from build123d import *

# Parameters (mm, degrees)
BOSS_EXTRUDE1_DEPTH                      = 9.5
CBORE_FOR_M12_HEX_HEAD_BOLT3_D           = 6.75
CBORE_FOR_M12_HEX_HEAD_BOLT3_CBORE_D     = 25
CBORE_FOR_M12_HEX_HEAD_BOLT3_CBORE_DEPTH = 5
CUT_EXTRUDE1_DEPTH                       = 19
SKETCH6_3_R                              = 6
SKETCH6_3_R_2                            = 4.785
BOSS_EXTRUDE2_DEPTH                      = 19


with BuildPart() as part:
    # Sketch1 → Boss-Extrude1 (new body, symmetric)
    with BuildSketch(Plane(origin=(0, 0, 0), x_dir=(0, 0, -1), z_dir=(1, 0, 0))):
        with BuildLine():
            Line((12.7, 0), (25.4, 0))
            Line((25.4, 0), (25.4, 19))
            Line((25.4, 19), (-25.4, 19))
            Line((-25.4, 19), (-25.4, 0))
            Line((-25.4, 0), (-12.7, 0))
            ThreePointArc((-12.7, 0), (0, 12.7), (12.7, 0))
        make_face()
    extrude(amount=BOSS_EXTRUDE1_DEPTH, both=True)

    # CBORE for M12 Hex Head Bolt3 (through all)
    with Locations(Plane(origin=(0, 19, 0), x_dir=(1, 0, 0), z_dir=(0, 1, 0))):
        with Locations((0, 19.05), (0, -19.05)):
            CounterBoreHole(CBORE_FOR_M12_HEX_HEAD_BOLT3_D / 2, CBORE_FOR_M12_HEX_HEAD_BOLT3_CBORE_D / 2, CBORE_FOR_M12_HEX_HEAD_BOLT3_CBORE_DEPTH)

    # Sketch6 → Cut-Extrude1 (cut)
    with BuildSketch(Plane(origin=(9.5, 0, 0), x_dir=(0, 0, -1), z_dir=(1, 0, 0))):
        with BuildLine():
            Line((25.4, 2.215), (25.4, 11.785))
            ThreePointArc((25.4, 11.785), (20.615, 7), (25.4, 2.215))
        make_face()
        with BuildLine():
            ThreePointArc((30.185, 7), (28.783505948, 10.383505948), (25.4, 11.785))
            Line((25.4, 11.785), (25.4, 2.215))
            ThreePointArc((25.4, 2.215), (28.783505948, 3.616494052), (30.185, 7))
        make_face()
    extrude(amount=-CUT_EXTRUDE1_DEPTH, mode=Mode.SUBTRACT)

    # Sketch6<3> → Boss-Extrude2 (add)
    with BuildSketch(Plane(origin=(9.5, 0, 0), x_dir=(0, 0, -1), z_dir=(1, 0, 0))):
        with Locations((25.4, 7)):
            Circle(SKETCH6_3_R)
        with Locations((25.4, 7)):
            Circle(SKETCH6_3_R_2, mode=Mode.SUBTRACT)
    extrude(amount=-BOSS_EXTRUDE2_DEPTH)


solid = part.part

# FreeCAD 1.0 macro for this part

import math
import FreeCAD as App
import Part
import Sketcher
Q = App.Units.Quantity

doc = App.newDocument("Part")
body = doc.addObject("PartDesign::Body", "Body")

sketch1 = body.newObject("Sketcher::SketchObject", "Sketch")
sketch1.AttachmentSupport = (doc.getObject("YZ_Plane"), [""])
sketch1.MapMode = "FlatFace"
sketch1.addGeometry([
    Part.LineSegment(App.Vector(0, -12.7, 0), App.Vector(0, -25.4, 0)),
    Part.LineSegment(App.Vector(0, -25.4, 0), App.Vector(19, -25.4, 0)),
    Part.LineSegment(App.Vector(19, -25.4, 0), App.Vector(19, 25.4, 0)),
    Part.LineSegment(App.Vector(19, 25.4, 0), App.Vector(0, 25.4, 0)),
    Part.LineSegment(App.Vector(0, 25.4, 0), App.Vector(0, 12.7, 0)),
    Part.ArcOfCircle(Part.Circle(App.Vector(0, 0, 0), App.Vector(0, 0, 1), 12.7), math.radians(-90), math.radians(90)),
], False)
sketch1.addConstraint([
    Sketcher.Constraint("Coincident", 0, 2, 1, 1),
    Sketcher.Constraint("Coincident", 1, 2, 2, 1),
    Sketcher.Constraint("Coincident", 2, 2, 3, 1),
    Sketcher.Constraint("Coincident", 3, 2, 4, 1),
    Sketcher.Constraint("Coincident", 4, 2, 5, 2),
    Sketcher.Constraint("Coincident", 5, 1, 0, 1),
    Sketcher.Constraint("Vertical", 0),
    Sketcher.Constraint("Horizontal", 1),
    Sketcher.Constraint("Vertical", 2),
    Sketcher.Constraint("Horizontal", 3),
    Sketcher.Constraint("Vertical", 4),
    Sketcher.Constraint("Coincident", 5, 3, -1, 1),
    Sketcher.Constraint("Symmetric", 0, 2, 3, 2, -1, 1),
    Sketcher.Constraint("PointOnObject", 0, 2, -2),
    Sketcher.Constraint("Radius", 5, Q("12.7 mm")),
    Sketcher.Constraint("DistanceX", 1, 1, 1, 2, Q("19 mm")),
    Sketcher.Constraint("DistanceY", 0, 2, 0, 1, Q("12.7 mm")),
])
pad1 = body.newObject("PartDesign::Pad", "Pad")
pad1.Profile = sketch1
pad1.Length = 19
pad1.Midplane = True

sketch2 = body.newObject("Sketcher::SketchObject", "Sketch001")
sketch2.AttachmentSupport = (doc.getObject("XZ_Plane"), [""])
sketch2.MapMode = "FlatFace"
sketch2.AttachmentOffset = App.Placement(App.Vector(0, 0, -19), App.Rotation())
sketch2.addGeometry([
    Part.Circle(App.Vector(0, -19.05, 0), App.Vector(0, 0, 1), 3.375),
    Part.Circle(App.Vector(0, 19.05, 0), App.Vector(0, 0, 1), 3.375),
], False)
sketch2.addConstraint([
    Sketcher.Constraint("Equal", 0, 1),
    Sketcher.Constraint("Symmetric", 0, 3, 1, 3, -1, 1),
    Sketcher.Constraint("PointOnObject", 0, 3, -2),
    Sketcher.Constraint("Diameter", 0, Q("6.75 mm")),
    Sketcher.Constraint("DistanceY", 0, 3, 1, 3, Q("38.1 mm")),
])
doc.recompute()
hole = body.newObject("PartDesign::Hole", "Hole")
hole.Profile = sketch2
hole.ThreadType = "None"
hole.Diameter = 6.75
hole.DepthType = "ThroughAll"
hole.HoleCutType = "Counterbore"
hole.HoleCutDiameter = 25
hole.HoleCutDepth = 5
hole.Reversed = True

sketch3 = body.newObject("Sketcher::SketchObject", "Sketch002")
sketch3.AttachmentSupport = (doc.getObject("YZ_Plane"), [""])
sketch3.MapMode = "FlatFace"
sketch3.AttachmentOffset = App.Placement(App.Vector(0, 0, 9.5), App.Rotation())
sketch3.addGeometry([
    Part.ArcOfCircle(Part.Circle(App.Vector(7, -25.4, 0), App.Vector(0, 0, 1), 4.785), math.radians(0), math.radians(180)),
    Part.ArcOfCircle(Part.Circle(App.Vector(7, -25.4, 0), App.Vector(0, 0, 1), 4.785), math.radians(180), math.radians(270)),
    Part.ArcOfCircle(Part.Circle(App.Vector(7, -25.4, 0), App.Vector(0, 0, 1), 4.785), math.radians(-90), math.radians(0)),
], False)
sketch3.addConstraint([
    Sketcher.Constraint("Tangent", 0, 2, 1, 1),
    Sketcher.Constraint("Tangent", 1, 2, 2, 1),
    Sketcher.Constraint("Tangent", 2, 2, 0, 1),
    Sketcher.Constraint("Horizontal", 2, 3, 0, 2),
    Sketcher.Constraint("Horizontal", 0, 2, 2, 2),
    Sketcher.Constraint("Vertical", 2, 3, 1, 2),
    Sketcher.Constraint("DistanceX", -1, 1, 0, 3, Q("7 mm")),
    Sketcher.Constraint("Radius", 0, Q("4.785 mm")),
    Sketcher.Constraint("DistanceY", 0, 3, -1, 1, Q("25.4 mm")),
])
pocket1 = body.newObject("PartDesign::Pocket", "Pocket")
pocket1.Profile = sketch3
pocket1.Length = 19

sketch4 = body.newObject("Sketcher::SketchObject", "Sketch003")
sketch4.AttachmentSupport = (doc.getObject("YZ_Plane"), [""])
sketch4.MapMode = "FlatFace"
sketch4.AttachmentOffset = App.Placement(App.Vector(0, 0, 9.5), App.Rotation())
sketch4.addGeometry([
    Part.Circle(App.Vector(7, -25.4, 0), App.Vector(0, 0, 1), 6),
    Part.Circle(App.Vector(7, -25.4, 0), App.Vector(0, 0, 1), 4.785),
], False)
sketch4.addConstraint([
    Sketcher.Constraint("Coincident", 1, 3, 0, 3),
    Sketcher.Constraint("Diameter", 0, Q("12 mm")),
    Sketcher.Constraint("Diameter", 1, Q("9.57 mm")),
    Sketcher.Constraint("DistanceX", -1, 1, 0, 3, Q("7 mm")),
    Sketcher.Constraint("DistanceY", 0, 3, -1, 1, Q("25.4 mm")),
])
pad2 = body.newObject("PartDesign::Pad", "Pad001")
pad2.Profile = sketch4
pad2.Length = 19
pad2.Reversed = True

doc.recompute()
